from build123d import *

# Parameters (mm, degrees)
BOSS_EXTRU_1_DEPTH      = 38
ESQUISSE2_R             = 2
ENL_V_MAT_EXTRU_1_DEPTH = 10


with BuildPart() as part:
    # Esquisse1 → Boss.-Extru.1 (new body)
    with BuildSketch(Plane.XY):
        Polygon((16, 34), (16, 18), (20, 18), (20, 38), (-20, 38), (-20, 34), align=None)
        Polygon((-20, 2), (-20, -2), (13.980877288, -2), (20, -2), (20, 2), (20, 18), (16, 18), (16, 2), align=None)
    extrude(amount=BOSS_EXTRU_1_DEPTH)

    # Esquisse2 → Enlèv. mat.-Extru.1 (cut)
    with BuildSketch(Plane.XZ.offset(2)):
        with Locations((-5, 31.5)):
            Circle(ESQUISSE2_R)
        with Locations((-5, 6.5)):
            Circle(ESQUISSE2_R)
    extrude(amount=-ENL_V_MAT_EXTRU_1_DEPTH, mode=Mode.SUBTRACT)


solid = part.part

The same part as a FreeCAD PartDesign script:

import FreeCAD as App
import Part
import Sketcher
Q = App.Units.Quantity

doc = App.newDocument("Part")
body = doc.addObject("PartDesign::Body", "Body")

# Sketch on XY plane
sketch1 = body.newObject("Sketcher::SketchObject", "Sketch")
sketch1.AttachmentSupport = (doc.getObject("XY_Plane"), [""])
sketch1.MapMode = "FlatFace"
sketch1.addGeometry([
    Part.LineSegment(App.Vector(16, 34, 0), App.Vector(16, 2, 0)),  # 0
    Part.LineSegment(App.Vector(16, 2, 0), App.Vector(-20, 2, 0)),  # 1
    Part.LineSegment(App.Vector(-20, 2, 0), App.Vector(-20, -2, 0)),  # 2
    Part.LineSegment(App.Vector(-20, -2, 0), App.Vector(20, -2, 0)),  # 3
    Part.LineSegment(App.Vector(20, -2, 0), App.Vector(20, 38, 0)),  # 4
    Part.LineSegment(App.Vector(20, 38, 0), App.Vector(-20, 38, 0)),  # 5
    Part.LineSegment(App.Vector(-20, 38, 0), App.Vector(-20, 34, 0)),  # 6
    Part.LineSegment(App.Vector(-20, 34, 0), App.Vector(16, 34, 0)),  # 7
], False)
sketch1.addConstraint([
    Sketcher.Constraint("Coincident", 0, 2, 1, 1),
    Sketcher.Constraint("Coincident", 1, 2, 2, 1),
    Sketcher.Constraint("Coincident", 2, 2, 3, 1),
    Sketcher.Constraint("Coincident", 3, 2, 4, 1),
    Sketcher.Constraint("Coincident", 4, 2, 5, 1),
    Sketcher.Constraint("Coincident", 5, 2, 6, 1),
    Sketcher.Constraint("Coincident", 6, 2, 7, 1),
    Sketcher.Constraint("Coincident", 7, 2, 0, 1),
    Sketcher.Constraint("Vertical", 0),
    Sketcher.Constraint("Horizontal", 1),
    Sketcher.Constraint("Vertical", 2),
    Sketcher.Constraint("Horizontal", 3),
    Sketcher.Constraint("Vertical", 4),
    Sketcher.Constraint("Horizontal", 5),
    Sketcher.Constraint("Vertical", 6),
    Sketcher.Constraint("Horizontal", 7),
    Sketcher.Constraint("Symmetric", 1, 2, 3, 2, -1, 1),
    Sketcher.Constraint("Vertical", 2, 2, 5, 2),
    Sketcher.Constraint("Equal", 5, 4),
    Sketcher.Constraint("Equal", 2, 6),
    Sketcher.Constraint("DistanceX", 1, 2, 1, 1, Q("36 mm")),
    Sketcher.Constraint("DistanceX", 3, 1, 3, 2, Q("40 mm")),
    Sketcher.Constraint("DistanceY", 0, 2, 0, 1, Q("32 mm")),
])
pad1 = body.newObject("PartDesign::Pad", "Pad")
pad1.Profile = sketch1
pad1.Length = 38

# Sketch on XZ plane
sketch2 = body.newObject("Sketcher::SketchObject", "Sketch001")
sketch2.AttachmentSupport = (doc.getObject("XZ_Plane"), [""])
sketch2.MapMode = "FlatFace"
sketch2.AttachmentOffset = App.Placement(App.Vector(0, 0, 2), App.Rotation())
sketch2.addGeometry([
    Part.Circle(App.Vector(-5, 31.5, 0), App.Vector(0, 0, 1), 2),
    Part.Circle(App.Vector(-5, 6.5, 0), App.Vector(0, 0, 1), 2),
], False)
sketch2.addConstraint([
    Sketcher.Constraint("Equal", 0, 1),
    Sketcher.Constraint("Vertical", 0, 3, 1, 3),
    Sketcher.Constraint("Diameter", 0, Q("4 mm")),
    Sketcher.Constraint("DistanceX", 0, 3, -1, 1, Q("5 mm")),
    Sketcher.Constraint("DistanceY", 1, 3, 0, 3, Q("25 mm")),
    Sketcher.Constraint("DistanceY", -1, 1, 0, 3, Q("31.5 mm")),
])
pocket1 = body.newObject("PartDesign::Pocket", "Pocket")
pocket1.Profile = sketch2
pocket1.Length = 10

doc.recompute()
